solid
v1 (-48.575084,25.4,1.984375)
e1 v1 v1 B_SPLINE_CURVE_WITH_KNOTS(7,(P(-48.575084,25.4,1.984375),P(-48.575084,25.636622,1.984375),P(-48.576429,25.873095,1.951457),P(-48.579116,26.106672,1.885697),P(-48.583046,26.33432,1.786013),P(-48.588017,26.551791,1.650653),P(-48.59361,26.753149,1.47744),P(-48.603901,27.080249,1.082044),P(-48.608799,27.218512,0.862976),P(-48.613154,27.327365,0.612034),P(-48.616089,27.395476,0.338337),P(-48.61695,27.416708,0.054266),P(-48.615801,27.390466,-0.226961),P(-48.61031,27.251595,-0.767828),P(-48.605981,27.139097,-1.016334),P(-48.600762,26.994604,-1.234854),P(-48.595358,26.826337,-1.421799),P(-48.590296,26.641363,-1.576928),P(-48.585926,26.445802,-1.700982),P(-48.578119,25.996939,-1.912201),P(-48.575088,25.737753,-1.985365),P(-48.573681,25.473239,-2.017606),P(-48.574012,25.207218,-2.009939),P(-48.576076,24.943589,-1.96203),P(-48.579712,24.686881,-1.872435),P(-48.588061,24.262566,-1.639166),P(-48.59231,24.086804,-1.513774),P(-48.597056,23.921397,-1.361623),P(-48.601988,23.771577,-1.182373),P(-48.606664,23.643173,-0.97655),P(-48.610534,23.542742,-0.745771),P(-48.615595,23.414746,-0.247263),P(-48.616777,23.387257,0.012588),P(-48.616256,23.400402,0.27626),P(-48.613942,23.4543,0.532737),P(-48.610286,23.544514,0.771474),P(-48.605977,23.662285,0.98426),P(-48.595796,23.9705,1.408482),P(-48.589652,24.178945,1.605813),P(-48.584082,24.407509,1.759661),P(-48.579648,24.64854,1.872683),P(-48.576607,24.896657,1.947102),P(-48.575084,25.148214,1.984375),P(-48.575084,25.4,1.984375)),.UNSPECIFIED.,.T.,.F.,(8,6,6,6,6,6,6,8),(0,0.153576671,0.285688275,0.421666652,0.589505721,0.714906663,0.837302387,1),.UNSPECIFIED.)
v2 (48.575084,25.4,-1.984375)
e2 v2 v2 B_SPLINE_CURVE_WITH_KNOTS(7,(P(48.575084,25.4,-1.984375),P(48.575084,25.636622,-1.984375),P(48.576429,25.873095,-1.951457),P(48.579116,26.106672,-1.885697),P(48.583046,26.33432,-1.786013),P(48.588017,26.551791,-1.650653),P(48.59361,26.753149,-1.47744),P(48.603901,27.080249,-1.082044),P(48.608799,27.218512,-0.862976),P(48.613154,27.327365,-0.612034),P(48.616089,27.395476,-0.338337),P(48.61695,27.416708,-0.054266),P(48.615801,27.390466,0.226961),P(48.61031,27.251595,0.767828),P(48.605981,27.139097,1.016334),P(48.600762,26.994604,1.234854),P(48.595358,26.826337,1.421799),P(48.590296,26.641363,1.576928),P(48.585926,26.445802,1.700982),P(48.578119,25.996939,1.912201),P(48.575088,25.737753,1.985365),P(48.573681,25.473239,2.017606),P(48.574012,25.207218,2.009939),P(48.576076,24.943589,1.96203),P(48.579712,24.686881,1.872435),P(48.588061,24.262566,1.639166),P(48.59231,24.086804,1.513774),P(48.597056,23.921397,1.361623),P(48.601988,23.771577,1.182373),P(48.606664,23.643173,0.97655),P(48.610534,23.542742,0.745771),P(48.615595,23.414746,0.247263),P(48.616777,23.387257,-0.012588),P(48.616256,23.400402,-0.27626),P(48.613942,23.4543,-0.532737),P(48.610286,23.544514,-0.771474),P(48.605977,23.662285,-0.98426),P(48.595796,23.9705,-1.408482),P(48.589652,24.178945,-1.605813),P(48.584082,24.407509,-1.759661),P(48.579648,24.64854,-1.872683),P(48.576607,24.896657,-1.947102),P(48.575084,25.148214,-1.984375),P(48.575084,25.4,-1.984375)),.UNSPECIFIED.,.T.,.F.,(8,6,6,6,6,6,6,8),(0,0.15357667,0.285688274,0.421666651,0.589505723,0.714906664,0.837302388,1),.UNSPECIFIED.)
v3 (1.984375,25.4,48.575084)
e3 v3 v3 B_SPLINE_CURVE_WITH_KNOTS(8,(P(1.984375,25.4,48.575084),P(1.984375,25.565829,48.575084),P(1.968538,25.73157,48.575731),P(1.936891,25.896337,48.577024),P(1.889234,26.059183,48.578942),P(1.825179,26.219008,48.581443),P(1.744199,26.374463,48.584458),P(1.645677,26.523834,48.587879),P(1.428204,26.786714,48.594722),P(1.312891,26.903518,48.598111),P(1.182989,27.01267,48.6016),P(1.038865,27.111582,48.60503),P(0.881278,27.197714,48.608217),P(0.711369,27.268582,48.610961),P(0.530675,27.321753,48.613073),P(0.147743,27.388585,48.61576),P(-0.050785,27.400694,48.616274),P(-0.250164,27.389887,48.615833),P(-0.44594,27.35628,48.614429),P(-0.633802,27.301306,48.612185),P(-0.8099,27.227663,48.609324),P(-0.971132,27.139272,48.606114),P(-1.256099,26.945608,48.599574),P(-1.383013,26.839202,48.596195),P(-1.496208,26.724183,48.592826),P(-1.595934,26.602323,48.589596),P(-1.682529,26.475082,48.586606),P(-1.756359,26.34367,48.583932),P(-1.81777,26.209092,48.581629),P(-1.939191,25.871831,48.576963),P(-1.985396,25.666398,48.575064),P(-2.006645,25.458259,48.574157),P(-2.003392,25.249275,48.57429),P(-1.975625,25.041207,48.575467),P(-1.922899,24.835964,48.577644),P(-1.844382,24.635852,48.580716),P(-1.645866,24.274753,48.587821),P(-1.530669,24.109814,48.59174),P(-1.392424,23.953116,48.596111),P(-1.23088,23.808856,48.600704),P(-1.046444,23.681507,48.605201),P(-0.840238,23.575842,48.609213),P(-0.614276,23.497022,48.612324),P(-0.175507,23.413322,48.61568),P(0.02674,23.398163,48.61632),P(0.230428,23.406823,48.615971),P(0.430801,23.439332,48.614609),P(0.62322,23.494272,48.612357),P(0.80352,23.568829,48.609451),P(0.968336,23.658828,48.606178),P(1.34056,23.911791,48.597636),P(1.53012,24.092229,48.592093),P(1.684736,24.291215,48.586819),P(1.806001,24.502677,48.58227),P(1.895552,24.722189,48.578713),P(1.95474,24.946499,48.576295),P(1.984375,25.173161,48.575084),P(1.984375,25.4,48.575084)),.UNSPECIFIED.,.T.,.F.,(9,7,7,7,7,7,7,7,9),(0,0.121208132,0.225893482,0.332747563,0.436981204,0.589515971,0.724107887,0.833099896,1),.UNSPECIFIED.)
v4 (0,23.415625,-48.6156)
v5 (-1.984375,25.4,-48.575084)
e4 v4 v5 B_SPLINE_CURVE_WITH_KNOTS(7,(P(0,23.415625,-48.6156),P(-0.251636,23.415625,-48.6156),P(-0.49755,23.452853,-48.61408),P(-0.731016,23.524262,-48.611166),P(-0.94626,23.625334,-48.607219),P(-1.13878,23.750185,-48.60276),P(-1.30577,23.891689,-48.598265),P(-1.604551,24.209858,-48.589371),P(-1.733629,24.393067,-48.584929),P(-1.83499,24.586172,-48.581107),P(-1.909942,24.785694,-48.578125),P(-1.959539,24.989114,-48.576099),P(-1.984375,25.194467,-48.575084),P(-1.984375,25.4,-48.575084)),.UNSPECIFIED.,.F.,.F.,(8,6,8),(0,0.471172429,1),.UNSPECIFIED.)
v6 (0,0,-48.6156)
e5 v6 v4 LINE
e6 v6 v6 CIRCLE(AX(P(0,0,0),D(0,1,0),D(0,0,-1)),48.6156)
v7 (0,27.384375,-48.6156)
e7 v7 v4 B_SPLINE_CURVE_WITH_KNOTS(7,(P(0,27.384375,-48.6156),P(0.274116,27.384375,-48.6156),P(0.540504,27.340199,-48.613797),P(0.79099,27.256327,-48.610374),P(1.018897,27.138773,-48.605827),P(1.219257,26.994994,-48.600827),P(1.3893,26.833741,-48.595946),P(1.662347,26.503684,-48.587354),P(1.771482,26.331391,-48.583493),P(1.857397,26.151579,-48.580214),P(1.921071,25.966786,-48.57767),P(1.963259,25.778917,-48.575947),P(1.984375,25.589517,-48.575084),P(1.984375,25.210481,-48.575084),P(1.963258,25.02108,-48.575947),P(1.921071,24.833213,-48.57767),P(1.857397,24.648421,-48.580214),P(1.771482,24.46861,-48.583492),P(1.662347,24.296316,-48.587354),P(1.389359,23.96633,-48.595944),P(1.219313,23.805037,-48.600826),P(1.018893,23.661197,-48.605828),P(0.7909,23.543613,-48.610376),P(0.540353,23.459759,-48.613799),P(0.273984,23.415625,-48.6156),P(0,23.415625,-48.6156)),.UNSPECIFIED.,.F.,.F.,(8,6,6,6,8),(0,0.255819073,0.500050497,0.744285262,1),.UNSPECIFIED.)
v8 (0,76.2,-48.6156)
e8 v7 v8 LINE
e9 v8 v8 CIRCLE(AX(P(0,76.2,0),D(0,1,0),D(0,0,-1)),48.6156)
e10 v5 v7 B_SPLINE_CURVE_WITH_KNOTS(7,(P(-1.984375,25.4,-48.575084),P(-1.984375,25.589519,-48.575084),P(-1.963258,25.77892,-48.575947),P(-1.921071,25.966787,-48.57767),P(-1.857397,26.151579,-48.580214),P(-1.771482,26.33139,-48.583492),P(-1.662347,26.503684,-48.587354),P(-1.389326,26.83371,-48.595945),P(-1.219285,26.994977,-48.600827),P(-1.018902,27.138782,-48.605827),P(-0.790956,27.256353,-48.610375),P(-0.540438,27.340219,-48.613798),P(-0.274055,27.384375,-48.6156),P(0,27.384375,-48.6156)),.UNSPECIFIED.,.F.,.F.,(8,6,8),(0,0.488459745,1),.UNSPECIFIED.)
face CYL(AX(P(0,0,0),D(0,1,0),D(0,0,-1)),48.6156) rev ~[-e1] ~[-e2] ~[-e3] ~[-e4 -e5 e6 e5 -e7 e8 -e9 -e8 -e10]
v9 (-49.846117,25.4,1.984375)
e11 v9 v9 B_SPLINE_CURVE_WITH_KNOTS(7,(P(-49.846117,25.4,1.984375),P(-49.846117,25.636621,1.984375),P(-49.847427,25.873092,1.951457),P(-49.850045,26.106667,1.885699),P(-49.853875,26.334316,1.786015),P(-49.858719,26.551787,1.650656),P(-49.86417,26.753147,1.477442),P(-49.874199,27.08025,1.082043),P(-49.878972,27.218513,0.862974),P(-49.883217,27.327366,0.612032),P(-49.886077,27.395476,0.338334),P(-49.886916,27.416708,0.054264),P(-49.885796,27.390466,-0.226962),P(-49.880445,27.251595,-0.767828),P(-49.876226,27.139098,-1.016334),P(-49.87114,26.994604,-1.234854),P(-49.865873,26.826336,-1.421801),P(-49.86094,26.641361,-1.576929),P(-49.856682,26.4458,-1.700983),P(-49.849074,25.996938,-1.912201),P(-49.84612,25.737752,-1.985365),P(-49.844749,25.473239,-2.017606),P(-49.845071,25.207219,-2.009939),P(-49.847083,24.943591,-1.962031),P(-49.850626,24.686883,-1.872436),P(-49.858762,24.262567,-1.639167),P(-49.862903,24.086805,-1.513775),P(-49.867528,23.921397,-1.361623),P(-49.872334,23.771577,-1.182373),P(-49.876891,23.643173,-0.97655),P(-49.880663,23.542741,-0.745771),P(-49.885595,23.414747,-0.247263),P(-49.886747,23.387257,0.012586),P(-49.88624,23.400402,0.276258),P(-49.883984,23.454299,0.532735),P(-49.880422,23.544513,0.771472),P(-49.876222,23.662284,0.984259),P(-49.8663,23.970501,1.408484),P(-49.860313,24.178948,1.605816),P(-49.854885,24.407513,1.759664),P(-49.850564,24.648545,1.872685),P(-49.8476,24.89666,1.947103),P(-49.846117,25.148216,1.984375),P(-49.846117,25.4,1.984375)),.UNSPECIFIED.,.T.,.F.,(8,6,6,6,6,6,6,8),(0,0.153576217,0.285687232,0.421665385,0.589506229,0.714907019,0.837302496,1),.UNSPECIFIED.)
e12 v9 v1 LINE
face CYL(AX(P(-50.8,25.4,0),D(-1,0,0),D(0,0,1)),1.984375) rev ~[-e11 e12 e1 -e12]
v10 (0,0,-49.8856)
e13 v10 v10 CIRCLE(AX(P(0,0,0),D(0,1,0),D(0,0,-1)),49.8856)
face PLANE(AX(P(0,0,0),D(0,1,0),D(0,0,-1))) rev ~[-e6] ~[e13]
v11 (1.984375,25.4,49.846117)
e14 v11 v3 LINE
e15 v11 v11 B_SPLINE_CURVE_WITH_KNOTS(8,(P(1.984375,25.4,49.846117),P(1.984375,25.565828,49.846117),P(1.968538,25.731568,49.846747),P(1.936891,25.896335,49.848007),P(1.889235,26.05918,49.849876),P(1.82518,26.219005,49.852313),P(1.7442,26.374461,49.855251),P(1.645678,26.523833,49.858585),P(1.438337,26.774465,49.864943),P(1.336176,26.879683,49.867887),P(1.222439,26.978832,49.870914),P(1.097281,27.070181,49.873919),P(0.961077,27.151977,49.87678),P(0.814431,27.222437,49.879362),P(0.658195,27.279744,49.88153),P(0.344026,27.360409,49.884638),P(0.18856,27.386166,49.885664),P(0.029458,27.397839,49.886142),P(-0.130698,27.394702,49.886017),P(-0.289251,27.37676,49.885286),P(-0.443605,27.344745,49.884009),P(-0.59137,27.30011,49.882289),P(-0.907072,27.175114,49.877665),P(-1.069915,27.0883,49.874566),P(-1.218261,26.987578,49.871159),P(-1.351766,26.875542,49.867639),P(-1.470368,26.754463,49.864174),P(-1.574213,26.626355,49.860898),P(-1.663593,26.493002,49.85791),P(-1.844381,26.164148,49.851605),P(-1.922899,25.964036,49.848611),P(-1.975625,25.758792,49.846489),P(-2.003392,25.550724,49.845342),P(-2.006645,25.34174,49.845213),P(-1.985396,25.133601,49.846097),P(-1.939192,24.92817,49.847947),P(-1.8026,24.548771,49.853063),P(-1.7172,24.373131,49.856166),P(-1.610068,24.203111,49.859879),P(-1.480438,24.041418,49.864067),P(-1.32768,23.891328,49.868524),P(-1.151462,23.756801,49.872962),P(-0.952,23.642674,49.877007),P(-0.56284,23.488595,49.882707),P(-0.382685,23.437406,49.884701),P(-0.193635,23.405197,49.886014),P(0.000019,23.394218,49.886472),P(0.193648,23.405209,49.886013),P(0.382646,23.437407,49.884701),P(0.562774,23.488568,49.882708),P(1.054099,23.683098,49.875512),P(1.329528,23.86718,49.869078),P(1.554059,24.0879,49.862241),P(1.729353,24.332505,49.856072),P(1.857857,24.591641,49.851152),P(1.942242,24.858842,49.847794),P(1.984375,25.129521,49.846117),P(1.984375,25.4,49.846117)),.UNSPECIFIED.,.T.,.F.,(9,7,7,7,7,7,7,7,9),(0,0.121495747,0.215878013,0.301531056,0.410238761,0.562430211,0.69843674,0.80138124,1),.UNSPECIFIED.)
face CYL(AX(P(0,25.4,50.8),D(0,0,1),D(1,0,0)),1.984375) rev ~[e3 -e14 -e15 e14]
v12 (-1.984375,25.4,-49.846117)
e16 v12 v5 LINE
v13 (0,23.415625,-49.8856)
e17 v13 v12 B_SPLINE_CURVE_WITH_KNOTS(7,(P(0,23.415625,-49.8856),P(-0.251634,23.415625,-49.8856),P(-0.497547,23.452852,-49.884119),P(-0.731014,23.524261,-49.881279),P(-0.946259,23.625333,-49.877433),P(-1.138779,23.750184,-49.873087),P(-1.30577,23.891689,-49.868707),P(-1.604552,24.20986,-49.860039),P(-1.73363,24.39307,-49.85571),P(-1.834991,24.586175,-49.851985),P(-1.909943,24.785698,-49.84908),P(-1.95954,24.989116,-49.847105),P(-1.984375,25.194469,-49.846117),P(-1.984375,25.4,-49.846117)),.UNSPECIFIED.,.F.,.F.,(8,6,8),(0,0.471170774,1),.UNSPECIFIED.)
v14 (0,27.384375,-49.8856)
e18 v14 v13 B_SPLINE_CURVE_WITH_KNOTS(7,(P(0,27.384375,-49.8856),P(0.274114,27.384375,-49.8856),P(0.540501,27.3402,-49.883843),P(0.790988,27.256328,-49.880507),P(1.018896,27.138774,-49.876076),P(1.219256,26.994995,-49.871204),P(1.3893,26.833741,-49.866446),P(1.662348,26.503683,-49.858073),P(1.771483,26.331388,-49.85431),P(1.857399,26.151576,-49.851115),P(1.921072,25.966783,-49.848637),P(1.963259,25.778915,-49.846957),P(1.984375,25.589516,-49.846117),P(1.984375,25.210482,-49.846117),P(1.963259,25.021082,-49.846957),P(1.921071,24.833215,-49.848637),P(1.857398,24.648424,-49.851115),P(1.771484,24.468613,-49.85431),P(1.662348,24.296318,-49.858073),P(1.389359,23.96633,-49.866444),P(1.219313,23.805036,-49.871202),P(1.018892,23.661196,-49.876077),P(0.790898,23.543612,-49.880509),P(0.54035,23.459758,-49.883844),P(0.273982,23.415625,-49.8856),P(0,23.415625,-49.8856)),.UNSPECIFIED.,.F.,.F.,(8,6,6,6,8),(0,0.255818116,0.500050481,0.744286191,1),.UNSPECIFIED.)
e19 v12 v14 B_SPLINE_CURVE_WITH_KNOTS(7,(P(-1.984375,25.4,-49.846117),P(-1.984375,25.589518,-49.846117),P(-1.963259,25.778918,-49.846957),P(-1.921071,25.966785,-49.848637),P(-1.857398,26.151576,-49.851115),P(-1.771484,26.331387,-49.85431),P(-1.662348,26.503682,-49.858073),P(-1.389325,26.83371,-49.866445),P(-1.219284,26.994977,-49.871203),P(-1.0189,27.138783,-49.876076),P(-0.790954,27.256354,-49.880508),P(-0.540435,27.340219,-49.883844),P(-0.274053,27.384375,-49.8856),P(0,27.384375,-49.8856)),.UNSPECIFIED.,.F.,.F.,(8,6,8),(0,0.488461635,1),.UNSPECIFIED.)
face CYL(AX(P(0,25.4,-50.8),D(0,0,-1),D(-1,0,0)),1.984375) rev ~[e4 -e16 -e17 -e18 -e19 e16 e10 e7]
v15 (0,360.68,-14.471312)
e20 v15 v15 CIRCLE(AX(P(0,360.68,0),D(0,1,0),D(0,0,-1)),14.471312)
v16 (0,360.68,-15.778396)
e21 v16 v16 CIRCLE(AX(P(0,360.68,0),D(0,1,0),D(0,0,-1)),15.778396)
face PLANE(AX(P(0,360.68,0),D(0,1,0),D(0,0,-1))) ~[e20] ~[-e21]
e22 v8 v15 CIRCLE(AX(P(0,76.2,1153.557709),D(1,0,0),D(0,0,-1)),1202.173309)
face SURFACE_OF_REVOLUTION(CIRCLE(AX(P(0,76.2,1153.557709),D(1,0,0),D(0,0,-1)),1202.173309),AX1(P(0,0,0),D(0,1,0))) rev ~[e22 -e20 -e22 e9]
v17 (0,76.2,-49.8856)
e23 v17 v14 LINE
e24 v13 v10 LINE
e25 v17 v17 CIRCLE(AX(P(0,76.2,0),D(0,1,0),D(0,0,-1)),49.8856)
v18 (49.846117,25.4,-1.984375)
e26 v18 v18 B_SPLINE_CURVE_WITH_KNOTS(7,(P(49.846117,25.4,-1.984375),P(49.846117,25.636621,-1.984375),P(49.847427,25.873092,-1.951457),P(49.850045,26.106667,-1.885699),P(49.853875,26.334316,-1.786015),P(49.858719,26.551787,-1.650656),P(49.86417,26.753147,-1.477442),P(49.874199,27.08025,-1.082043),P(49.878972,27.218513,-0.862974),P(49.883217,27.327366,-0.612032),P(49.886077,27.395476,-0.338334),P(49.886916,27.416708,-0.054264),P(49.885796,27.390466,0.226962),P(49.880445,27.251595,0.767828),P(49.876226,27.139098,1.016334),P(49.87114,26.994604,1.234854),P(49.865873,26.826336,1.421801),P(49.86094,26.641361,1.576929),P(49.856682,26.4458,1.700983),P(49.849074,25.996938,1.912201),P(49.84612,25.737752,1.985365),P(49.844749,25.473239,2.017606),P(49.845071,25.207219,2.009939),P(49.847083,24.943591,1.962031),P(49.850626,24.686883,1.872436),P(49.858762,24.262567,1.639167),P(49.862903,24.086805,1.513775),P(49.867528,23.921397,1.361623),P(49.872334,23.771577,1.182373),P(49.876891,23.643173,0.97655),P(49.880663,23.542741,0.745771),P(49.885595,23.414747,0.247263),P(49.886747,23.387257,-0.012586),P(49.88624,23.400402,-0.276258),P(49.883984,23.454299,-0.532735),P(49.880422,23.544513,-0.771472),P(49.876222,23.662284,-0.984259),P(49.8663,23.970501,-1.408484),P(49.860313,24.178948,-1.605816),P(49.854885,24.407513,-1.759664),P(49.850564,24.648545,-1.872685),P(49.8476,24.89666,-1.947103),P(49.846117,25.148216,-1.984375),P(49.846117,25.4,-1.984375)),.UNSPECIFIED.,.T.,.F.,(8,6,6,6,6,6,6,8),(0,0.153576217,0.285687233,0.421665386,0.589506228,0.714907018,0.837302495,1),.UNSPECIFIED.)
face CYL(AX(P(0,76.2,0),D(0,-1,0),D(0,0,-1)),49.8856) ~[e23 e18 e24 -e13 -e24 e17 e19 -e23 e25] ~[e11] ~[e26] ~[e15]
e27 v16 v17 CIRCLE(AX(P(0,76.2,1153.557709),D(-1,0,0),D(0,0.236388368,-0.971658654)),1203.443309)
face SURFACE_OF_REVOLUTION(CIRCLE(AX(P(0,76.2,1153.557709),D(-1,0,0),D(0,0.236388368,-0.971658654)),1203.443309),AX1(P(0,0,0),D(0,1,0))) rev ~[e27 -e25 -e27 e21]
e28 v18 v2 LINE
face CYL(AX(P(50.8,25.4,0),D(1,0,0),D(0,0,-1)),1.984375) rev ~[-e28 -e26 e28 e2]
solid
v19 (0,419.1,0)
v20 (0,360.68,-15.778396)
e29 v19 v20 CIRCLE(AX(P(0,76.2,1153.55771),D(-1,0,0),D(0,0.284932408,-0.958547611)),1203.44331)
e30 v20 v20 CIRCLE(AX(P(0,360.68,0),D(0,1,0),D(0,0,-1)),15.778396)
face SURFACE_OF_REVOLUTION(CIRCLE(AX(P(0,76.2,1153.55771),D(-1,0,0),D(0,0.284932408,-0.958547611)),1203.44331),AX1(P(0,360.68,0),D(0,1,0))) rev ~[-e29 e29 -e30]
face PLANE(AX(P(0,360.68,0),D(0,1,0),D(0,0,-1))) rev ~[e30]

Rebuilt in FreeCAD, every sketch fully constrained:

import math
import FreeCAD as App
import Part
import Sketcher
from FreeCAD import Vector
Q = App.Units.Quantity

doc = App.newDocument("Part")
body = doc.addObject("PartDesign::Body", "Body")

sketch1 = body.newObject("Sketcher::SketchObject", "Sketch")
sketch1.AttachmentSupport = (doc.getObject("XY_Plane"), [""])
sketch1.MapMode = "FlatFace"
sketch1.addGeometry([
    Part.LineSegment(Vector(-49.9, 76.2, 0), Vector(-49.9, 0, 0)),
    Part.LineSegment(Vector(-49.9, 0, 0), Vector(-48.6, 0, 0)),
    Part.LineSegment(Vector(-48.6, 0, 0), Vector(-48.6, 76.2, 0)),
    Part.ArcOfCircle(Part.Circle(Vector(1153.6, 76.2, 0), Vector(0, 0, 1), 1202.2), math.radians(166.31), math.radians(180)),
    Part.LineSegment(Vector(-14.5, 360.7, 0), Vector(-15.8, 360.7, 0)),
    Part.ArcOfCircle(Part.Circle(Vector(1153.6, 76.2, 0), Vector(0, 0, 1), 1203.4), math.radians(166.33), math.radians(180)),
], False)
sketch1.addConstraint([
    Sketcher.Constraint("Coincident", 0, 2, 1, 1),
    Sketcher.Constraint("Coincident", 1, 2, 2, 1),
    Sketcher.Constraint("Tangent", 2, 2, 3, 2),
    Sketcher.Constraint("Coincident", 3, 1, 4, 1),
    Sketcher.Constraint("Coincident", 4, 2, 5, 1),
    Sketcher.Constraint("Tangent", 5, 2, 0, 1),
    Sketcher.Constraint("Vertical", 0),
    Sketcher.Constraint("Horizontal", 1),
    Sketcher.Constraint("Vertical", 2),
    Sketcher.Constraint("Horizontal", 4),
    Sketcher.Constraint("Coincident", 5, 3, 3, 3),
    Sketcher.Constraint("PointOnObject", 0, 2, -1),
    Sketcher.Constraint("DistanceY", 0, 2, 0, 1, Q("3 in")),
    Sketcher.Constraint("DistanceX", 1, 1, 1, 2, Q("0.05 in")),
    Sketcher.Constraint("DistanceY", -1, 1, 4, 2, Q("14.2 in")),
    Sketcher.Constraint("DistanceX", 0, 2, -1, 1, Q("1.964 in")),
    Sketcher.Constraint("Radius", 3, Q("1202.173309 mm")),
])
revolution = body.newObject("PartDesign::Revolution", "Revolution")
revolution.Profile = sketch1
revolution.ReferenceAxis = (sketch1, ["V_Axis"])
revolution.Angle = 360

sketch2 = body.newObject("Sketcher::SketchObject", "Sketch001")
sketch2.AttachmentSupport = (doc.getObject("XY_Plane"), [""])
sketch2.MapMode = "FlatFace"
sketch2.AttachmentOffset = App.Placement(Vector(0, 0, 2 * 25.4), App.Rotation())
sketch2.addGeometry(Part.Circle(Vector(0, 25.4, 0), Vector(0, 0, 1), 2), False)
sketch2.addConstraint([
    Sketcher.Constraint("PointOnObject", 0, 3, -2),
    Sketcher.Constraint("Diameter", 0, Q("0.15625 in")),
    Sketcher.Constraint("DistanceY", -1, 1, 0, 3, Q("1 in")),
])
pocket1 = body.newObject("PartDesign::Pocket", "Pocket")
pocket1.Profile = sketch2
pocket1.Length = Q("0.5 in")
doc.recompute()

polarpattern = body.newObject("PartDesign::PolarPattern", "PolarPattern")
polarpattern.Originals = [pocket1]
polarpattern.Axis = (doc.getObject("Y_Axis"), [""])
polarpattern.Angle = 360
polarpattern.Occurrences = 4
body.Tip = polarpattern
body2 = doc.addObject("PartDesign::Body", "Body001")

sketch3 = body2.newObject("Sketcher::SketchObject", "Sketch002")
sketch3.AttachmentSupport = (doc.getObject("XY_Plane001"), [""])
sketch3.MapMode = "FlatFace"
sketch3.addGeometry([
    Part.LineSegment(Vector(0, 361, 0), Vector(0, 419, 0)),
    Part.ArcOfCircle(Part.Circle(Vector(1154, 76, 0), Vector(0, 0, 1), 1203), math.radians(163.45), math.radians(166.33)),
    Part.LineSegment(Vector(-16, 361, 0), Vector(0, 361, 0)),
], False)
sketch3.addConstraint([
    Sketcher.Constraint("Coincident", 0, 2, 1, 1),
    Sketcher.Constraint("Coincident", 1, 2, 2, 1),
    Sketcher.Constraint("Coincident", 2, 2, 0, 1),
    Sketcher.Constraint("Vertical", 0),
    Sketcher.Constraint("Horizontal", 2),
    Sketcher.Constraint("PointOnObject", 0, 2, -2),
    Sketcher.Constraint("DistanceY", 0, 1, 0, 2, Q("2.3 in")),
    Sketcher.Constraint("DistanceY", -1, 1, 1, 3, Q("3 in")),
    Sketcher.Constraint("DistanceY", -1, 1, 0, 2, Q("16.5 in")),
    Sketcher.Constraint("Radius", 1, Q("1203.44331 mm")),
])
revolution2 = body2.newObject("PartDesign::Revolution", "Revolution001")
revolution2.Profile = sketch3
revolution2.ReferenceAxis = (sketch3, ["V_Axis"])
revolution2.Angle = 360

doc.recompute()
